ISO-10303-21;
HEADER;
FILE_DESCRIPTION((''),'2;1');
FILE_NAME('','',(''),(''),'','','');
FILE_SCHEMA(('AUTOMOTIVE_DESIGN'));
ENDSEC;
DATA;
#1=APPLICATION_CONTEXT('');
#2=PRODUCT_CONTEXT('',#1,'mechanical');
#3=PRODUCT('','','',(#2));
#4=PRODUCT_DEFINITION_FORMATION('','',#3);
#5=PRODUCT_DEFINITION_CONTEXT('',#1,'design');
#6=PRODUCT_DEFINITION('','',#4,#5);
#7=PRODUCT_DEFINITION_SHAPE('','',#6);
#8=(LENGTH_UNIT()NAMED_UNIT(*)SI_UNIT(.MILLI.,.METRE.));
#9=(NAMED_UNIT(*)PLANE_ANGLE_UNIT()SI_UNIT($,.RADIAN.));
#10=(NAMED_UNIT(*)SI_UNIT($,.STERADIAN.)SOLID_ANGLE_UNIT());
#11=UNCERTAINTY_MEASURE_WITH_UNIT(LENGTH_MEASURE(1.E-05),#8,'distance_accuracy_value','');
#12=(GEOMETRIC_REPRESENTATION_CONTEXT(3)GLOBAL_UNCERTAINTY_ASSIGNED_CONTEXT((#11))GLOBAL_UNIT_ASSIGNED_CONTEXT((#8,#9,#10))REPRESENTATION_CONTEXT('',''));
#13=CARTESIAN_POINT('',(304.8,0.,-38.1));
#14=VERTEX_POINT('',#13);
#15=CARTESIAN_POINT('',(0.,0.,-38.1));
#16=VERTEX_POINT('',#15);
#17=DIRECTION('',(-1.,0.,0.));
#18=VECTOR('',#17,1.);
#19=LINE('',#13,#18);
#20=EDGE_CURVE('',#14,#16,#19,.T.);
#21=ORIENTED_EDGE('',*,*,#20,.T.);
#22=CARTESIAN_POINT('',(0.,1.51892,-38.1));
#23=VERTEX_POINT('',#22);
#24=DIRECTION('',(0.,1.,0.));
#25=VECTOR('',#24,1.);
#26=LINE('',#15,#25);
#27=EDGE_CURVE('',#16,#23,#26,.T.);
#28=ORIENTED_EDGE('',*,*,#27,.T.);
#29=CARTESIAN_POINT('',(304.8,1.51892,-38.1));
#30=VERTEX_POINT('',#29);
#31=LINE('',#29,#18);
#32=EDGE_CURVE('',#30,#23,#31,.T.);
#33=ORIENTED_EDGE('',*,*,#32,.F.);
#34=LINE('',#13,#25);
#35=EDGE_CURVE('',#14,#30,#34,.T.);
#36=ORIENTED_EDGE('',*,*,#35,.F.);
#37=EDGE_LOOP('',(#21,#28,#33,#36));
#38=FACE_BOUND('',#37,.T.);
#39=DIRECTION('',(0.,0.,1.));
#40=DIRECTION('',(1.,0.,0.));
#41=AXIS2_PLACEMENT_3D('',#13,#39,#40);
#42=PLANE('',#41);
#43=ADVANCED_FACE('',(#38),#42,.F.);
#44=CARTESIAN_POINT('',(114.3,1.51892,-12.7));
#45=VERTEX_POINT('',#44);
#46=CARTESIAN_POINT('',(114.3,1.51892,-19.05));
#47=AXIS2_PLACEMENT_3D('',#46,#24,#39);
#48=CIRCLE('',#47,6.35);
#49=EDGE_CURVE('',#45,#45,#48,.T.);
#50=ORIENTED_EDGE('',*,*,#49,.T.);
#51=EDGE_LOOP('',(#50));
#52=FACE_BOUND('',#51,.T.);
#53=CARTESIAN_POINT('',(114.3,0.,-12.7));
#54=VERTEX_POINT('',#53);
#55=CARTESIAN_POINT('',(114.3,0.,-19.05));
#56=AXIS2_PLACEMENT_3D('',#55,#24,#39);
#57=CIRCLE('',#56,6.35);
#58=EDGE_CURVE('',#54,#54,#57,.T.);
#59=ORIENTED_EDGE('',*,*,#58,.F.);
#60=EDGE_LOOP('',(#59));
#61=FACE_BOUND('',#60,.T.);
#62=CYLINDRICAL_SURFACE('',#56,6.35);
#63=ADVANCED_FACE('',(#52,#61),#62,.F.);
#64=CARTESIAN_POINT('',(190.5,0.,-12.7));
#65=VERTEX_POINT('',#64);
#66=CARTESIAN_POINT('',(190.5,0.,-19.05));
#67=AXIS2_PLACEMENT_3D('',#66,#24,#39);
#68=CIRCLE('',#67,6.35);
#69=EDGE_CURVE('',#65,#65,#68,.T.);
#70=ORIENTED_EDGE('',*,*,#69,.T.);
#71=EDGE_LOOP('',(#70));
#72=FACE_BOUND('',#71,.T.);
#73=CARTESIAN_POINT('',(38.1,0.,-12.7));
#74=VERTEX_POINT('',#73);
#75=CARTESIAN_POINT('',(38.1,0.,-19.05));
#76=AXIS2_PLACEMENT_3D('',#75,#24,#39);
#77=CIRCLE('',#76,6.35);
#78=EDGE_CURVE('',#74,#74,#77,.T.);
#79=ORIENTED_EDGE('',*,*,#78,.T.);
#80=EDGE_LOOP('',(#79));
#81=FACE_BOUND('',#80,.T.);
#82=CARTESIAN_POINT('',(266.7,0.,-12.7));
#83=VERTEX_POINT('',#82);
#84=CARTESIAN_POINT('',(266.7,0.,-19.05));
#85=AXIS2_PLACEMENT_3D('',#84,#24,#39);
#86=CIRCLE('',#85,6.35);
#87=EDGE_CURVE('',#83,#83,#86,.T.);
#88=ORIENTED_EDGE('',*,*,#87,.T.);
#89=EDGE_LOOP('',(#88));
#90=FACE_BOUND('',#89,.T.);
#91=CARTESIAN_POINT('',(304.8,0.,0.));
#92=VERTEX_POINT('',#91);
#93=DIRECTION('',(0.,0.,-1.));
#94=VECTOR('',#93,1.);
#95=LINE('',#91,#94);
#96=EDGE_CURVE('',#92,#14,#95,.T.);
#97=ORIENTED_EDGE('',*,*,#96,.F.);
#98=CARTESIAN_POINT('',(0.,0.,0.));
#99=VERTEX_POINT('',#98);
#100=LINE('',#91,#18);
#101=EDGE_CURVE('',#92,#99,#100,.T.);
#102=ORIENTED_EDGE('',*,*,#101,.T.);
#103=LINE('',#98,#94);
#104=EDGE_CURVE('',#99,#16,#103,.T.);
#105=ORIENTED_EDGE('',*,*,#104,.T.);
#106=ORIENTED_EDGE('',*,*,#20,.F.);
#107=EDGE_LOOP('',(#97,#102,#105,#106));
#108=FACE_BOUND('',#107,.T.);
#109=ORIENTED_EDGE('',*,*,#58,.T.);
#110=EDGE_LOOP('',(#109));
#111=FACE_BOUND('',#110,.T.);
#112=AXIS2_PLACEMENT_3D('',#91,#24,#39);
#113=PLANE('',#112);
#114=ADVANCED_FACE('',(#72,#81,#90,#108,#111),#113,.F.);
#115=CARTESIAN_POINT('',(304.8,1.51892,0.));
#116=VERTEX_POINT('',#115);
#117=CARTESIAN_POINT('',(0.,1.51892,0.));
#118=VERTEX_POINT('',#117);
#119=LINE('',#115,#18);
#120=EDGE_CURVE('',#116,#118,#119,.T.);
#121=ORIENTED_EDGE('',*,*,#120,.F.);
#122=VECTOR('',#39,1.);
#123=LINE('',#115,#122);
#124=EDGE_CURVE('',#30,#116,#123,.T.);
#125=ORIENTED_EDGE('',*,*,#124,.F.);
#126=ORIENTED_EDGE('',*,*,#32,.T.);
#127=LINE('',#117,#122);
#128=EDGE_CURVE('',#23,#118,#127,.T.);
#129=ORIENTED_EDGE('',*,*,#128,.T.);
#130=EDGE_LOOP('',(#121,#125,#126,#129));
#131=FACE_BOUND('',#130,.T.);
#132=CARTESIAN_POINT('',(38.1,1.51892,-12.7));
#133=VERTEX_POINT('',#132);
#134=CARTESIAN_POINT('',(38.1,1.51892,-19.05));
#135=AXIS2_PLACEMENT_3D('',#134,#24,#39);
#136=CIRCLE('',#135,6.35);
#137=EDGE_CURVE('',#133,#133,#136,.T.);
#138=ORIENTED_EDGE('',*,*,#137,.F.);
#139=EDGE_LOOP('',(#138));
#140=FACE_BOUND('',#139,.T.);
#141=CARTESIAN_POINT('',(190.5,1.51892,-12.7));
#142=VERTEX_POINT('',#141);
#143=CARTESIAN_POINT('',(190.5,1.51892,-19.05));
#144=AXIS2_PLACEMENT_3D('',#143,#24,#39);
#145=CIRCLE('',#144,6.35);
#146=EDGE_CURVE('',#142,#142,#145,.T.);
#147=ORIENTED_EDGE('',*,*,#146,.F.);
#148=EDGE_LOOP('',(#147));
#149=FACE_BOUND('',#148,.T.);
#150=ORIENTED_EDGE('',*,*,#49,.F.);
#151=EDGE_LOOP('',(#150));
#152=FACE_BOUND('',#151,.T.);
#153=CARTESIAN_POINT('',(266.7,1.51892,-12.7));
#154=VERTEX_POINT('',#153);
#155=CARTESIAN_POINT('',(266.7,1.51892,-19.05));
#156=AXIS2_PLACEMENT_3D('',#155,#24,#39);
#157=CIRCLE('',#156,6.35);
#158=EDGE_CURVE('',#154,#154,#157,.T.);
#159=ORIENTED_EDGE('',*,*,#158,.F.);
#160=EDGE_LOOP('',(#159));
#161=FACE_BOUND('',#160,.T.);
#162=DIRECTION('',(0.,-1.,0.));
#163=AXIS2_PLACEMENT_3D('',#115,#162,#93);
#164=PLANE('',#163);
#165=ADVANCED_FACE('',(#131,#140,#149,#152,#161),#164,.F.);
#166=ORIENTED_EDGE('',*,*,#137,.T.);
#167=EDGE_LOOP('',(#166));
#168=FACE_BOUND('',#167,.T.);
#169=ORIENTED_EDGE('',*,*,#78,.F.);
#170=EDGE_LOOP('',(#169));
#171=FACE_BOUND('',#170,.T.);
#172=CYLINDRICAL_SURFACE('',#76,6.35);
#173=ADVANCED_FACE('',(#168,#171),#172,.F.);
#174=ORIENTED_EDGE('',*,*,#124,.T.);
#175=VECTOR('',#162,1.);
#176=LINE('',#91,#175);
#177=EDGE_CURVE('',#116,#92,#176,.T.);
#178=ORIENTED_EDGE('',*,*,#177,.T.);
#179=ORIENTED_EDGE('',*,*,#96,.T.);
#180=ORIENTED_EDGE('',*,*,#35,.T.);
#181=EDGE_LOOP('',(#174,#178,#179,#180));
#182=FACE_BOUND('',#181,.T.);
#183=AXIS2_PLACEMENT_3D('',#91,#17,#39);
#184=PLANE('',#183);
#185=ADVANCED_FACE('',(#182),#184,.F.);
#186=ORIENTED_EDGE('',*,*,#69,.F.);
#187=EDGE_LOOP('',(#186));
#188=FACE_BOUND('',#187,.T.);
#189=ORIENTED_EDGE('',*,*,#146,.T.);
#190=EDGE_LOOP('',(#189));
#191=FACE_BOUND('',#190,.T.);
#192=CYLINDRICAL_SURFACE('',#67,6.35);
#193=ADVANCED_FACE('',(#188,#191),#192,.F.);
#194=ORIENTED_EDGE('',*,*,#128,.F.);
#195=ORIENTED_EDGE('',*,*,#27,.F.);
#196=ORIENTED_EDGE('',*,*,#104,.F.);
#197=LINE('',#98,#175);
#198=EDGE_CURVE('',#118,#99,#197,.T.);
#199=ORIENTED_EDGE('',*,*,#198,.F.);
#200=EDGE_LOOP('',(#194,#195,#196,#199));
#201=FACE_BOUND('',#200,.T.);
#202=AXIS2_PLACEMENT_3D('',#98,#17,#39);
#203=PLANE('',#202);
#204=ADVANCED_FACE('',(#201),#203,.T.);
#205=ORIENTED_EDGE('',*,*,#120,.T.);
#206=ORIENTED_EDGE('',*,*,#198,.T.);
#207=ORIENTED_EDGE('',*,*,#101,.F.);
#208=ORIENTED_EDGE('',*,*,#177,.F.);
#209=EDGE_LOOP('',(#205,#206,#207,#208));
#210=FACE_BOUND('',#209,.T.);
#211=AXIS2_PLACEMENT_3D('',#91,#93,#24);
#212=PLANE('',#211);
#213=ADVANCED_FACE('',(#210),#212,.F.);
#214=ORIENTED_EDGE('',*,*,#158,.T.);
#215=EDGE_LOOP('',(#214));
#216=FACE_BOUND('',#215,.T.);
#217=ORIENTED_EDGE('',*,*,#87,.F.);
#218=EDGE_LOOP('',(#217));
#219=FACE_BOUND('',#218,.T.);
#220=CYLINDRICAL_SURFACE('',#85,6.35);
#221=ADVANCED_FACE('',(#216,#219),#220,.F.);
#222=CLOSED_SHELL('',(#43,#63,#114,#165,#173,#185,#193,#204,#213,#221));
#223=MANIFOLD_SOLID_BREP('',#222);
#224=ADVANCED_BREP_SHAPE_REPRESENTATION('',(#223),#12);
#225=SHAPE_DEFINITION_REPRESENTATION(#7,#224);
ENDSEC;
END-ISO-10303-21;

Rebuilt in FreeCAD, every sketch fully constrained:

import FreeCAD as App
import Part
import Sketcher
Q = App.Units.Quantity


def add_polygon(sketch, points):
    """Adds a closed chain of lines whose ends are joined by coincident constraints."""
    first, n = sketch.GeometryCount, len(points)
    for a, b in zip(points, points[1:] + points[:1]):
        sketch.addGeometry(Part.LineSegment(App.Vector(*a, 0), App.Vector(*b, 0)), False)
    for i in range(n):
        sketch.addConstraint(Sketcher.Constraint("Coincident", first + i, 2, first + (i + 1) % n, 1))

doc = App.newDocument("Part")
body = doc.addObject("PartDesign::Body", "Body")

sketch1 = body.newObject("Sketcher::SketchObject", "Sketch")
sketch1.AttachmentSupport = (doc.getObject("YZ_Plane"), [""])
sketch1.MapMode = "FlatFace"
add_polygon(sketch1, [(1.5, 0), (0, 0), (0, -38.1), (1.5, -38.1)])
sketch1.addConstraint([
    Sketcher.Constraint("Horizontal", 0),
    Sketcher.Constraint("Vertical", 1),
    Sketcher.Constraint("Horizontal", 2),
    Sketcher.Constraint("Vertical", 3),
    Sketcher.Constraint("Coincident", 0, 2, -1, 1),
    Sketcher.Constraint("DistanceY", 1, 2, 1, 1, Q("1.5 in")),
    Sketcher.Constraint("DistanceX", 0, 2, 0, 1, Q("0.0598 in")),
])
pad1 = body.newObject("PartDesign::Pad", "Pad")
pad1.Profile = sketch1
pad1.Length = Q("12 in")

sketch2 = body.newObject("Sketcher::SketchObject", "Sketch001")
sketch2.AttachmentSupport = (doc.getObject("XZ_Plane"), [""])
sketch2.MapMode = "FlatFace"
sketch2.AttachmentOffset = App.Placement(App.Vector(0, 0, -0.0598 * 25.4), App.Rotation())
sketch2.addGeometry([
    Part.Circle(App.Vector(114, -19, 0), App.Vector(0, 0, 1), 6),
    Part.Circle(App.Vector(190, -19, 0), App.Vector(0, 0, 1), 6),
    Part.Circle(App.Vector(267, -19, 0), App.Vector(0, 0, 1), 6),
    Part.Circle(App.Vector(38, -19, 0), App.Vector(0, 0, 1), 6),
], False)
sketch2.addConstraint([
    Sketcher.Constraint("Equal", 0, 1),
    Sketcher.Constraint("Equal", 1, 2),
    Sketcher.Constraint("Equal", 2, 3),
    Sketcher.Constraint("Horizontal", 0, 3, 1, 3),
    Sketcher.Constraint("Horizontal", 1, 3, 2, 3),
    Sketcher.Constraint("Horizontal", 2, 3, 3, 3),
    Sketcher.Constraint("Diameter", 0, Q("0.5 in")),
    Sketcher.Constraint("DistanceX", 0, 3, 1, 3, Q("3 in")),
    Sketcher.Constraint("DistanceX", 1, 3, 2, 3, Q("3 in")),
    Sketcher.Constraint("DistanceX", 3, 3, 0, 3, Q("3 in")),
    Sketcher.Constraint("DistanceX", -1, 1, 0, 3, Q("4.5 in")),
    Sketcher.Constraint("DistanceY", 0, 3, -1, 1, Q("0.75 in")),
])
pocket1 = body.newObject("PartDesign::Pocket", "Pocket")
pocket1.Profile = sketch2
pocket1.Type = "ThroughAll"
pocket1.Reversed = True

doc.recompute()
